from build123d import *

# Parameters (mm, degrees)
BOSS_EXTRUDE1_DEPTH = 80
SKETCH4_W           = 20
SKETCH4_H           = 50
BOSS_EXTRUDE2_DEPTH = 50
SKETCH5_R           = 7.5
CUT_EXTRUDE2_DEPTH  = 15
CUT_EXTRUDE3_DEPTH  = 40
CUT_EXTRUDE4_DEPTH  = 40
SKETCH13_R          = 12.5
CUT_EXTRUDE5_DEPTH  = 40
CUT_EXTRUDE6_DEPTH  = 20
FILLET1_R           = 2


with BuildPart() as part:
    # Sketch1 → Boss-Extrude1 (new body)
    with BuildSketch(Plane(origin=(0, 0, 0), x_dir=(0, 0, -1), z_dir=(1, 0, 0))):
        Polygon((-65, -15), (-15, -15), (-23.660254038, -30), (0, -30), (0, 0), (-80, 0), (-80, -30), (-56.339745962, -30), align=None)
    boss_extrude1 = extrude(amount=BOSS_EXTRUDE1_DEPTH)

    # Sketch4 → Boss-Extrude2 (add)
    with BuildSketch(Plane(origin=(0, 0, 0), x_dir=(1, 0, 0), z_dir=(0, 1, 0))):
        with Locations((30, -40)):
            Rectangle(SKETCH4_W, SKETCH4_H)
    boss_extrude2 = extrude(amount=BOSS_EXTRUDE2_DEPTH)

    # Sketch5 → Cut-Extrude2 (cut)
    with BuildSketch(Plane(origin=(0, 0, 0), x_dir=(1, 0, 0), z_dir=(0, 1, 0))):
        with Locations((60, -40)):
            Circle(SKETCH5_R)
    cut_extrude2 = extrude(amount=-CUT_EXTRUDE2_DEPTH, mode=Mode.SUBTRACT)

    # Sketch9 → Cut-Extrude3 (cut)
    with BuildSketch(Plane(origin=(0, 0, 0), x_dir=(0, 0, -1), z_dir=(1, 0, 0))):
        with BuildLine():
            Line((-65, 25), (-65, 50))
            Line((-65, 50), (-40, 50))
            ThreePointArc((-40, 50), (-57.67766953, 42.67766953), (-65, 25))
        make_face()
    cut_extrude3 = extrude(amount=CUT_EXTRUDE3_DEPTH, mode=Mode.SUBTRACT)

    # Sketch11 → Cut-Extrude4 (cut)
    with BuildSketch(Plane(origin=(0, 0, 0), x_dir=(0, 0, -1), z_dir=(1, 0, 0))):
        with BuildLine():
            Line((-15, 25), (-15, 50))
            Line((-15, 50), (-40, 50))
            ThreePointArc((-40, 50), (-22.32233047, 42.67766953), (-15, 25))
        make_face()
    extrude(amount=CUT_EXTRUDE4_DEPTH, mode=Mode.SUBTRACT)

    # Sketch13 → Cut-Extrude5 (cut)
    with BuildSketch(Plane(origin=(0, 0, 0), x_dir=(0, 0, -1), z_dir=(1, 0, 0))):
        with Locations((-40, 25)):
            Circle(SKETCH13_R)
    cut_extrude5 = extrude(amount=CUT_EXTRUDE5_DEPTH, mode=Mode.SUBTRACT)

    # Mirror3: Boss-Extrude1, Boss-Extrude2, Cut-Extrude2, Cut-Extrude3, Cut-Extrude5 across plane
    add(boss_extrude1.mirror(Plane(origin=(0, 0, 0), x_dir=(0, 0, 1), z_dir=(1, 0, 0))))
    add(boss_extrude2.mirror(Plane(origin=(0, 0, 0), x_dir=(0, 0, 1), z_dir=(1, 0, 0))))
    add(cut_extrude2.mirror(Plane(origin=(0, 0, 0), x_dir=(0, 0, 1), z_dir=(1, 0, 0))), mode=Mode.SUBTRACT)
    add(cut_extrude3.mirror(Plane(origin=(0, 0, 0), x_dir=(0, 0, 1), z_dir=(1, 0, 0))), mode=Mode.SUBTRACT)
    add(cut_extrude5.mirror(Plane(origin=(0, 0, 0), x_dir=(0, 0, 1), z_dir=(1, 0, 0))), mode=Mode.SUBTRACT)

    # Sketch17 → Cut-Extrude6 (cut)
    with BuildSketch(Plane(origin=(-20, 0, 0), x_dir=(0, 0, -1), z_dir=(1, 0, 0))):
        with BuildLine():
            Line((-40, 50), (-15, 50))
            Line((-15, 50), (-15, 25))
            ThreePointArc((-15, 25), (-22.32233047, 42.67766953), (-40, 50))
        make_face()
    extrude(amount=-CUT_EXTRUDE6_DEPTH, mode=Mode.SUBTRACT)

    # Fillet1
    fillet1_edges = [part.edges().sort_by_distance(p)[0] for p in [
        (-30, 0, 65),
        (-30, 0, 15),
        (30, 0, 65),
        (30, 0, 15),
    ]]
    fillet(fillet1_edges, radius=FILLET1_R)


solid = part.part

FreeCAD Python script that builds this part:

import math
import FreeCAD as App
import Part
import Sketcher
Q = App.Units.Quantity


def edges_at(feature, points):
    """Names of the edges that pass closest to the given points."""
    edges = feature.Shape.Edges
    near = lambda p: min(range(len(edges)), key=lambda i: edges[i].distToShape(Part.Vertex(*p))[0])
    return sorted({f"Edge{near(p) + 1}" for p in points})

doc = App.newDocument("Part")
body = doc.addObject("PartDesign::Body", "Body")

# Sketch on YZ plane
sketch1 = doc.addObject("Sketcher::SketchObject", "Sketch")
body.addObject(sketch1)
sketch1.AttachmentSupport = (doc.YZ_Plane, [""])
sketch1.MapMode = "FlatFace"
sketch1.addGeometry(Part.LineSegment(App.Vector(-15, 65, 0), App.Vector(-15, 15, 0)), False)
sketch1.addGeometry(Part.LineSegment(App.Vector(-15, 15, 0), App.Vector(-30, 23.660254, 0)), False)
sketch1.addGeometry(Part.LineSegment(App.Vector(-30, 23.660254, 0), App.Vector(-30, 0, 0)), False)
sketch1.addGeometry(Part.LineSegment(App.Vector(-30, 0, 0), App.Vector(0, 0, 0)), False)
sketch1.addGeometry(Part.LineSegment(App.Vector(0, 0, 0), App.Vector(0, 80, 0)), False)
sketch1.addGeometry(Part.LineSegment(App.Vector(0, 80, 0), App.Vector(-30, 80, 0)), False)
sketch1.addGeometry(Part.LineSegment(App.Vector(-30, 80, 0), App.Vector(-30, 56.339746, 0)), False)
sketch1.addGeometry(Part.LineSegment(App.Vector(-30, 56.339746, 0), App.Vector(-15, 65, 0)), False)
sketch1.addConstraint(Sketcher.Constraint("Coincident", 0, 2, 1, 1))
sketch1.addConstraint(Sketcher.Constraint("Coincident", 1, 2, 2, 1))
sketch1.addConstraint(Sketcher.Constraint("Coincident", 2, 2, 3, 1))
sketch1.addConstraint(Sketcher.Constraint("Coincident", 3, 2, 4, 1))
sketch1.addConstraint(Sketcher.Constraint("Coincident", 4, 2, 5, 1))
sketch1.addConstraint(Sketcher.Constraint("Coincident", 5, 2, 6, 1))
sketch1.addConstraint(Sketcher.Constraint("Coincident", 6, 2, 7, 1))
sketch1.addConstraint(Sketcher.Constraint("Coincident", 7, 2, 0, 1))
sketch1.addConstraint(Sketcher.Constraint("Vertical", 0))
sketch1.addConstraint(Sketcher.Constraint("Vertical", 2))
sketch1.addConstraint(Sketcher.Constraint("Horizontal", 3))
sketch1.addConstraint(Sketcher.Constraint("Vertical", 4))
sketch1.addConstraint(Sketcher.Constraint("Horizontal", 5))
sketch1.addConstraint(Sketcher.Constraint("Vertical", 6))
sketch1.addConstraint(Sketcher.Constraint("Coincident", 3, 2, -1, 1))
sketch1.addConstraint(Sketcher.Constraint("Vertical", 2, 2, 5, 2))
sketch1.addConstraint(Sketcher.Constraint("Equal", 2, 6))
sketch1.addConstraint(Sketcher.Constraint("Equal", 1, 7))
sketch1.addConstraint(Sketcher.Constraint("DistanceX", 3, 1, 3, 2, Q("30 mm")))
sketch1.addConstraint(Sketcher.Constraint("DistanceY", 0, 2, 0, 1, Q("50 mm")))
sketch1.addConstraint(Sketcher.Constraint("DistanceY", 4, 1, 4, 2, Q("80 mm")))
sketch1.addConstraint(Sketcher.Constraint("Angle", 1, Q("150 deg")))
sketch1.addConstraint(Sketcher.Constraint("DistanceX", 0, 2, -1, 1, Q("15 mm")))
pad1 = doc.addObject("PartDesign::Pad", "Pad")
body.addObject(pad1)
pad1.Profile = sketch1
pad1.Length = 80

# Sketch on XZ plane
sketch2 = doc.addObject("Sketcher::SketchObject", "Sketch001")
body.addObject(sketch2)
sketch2.AttachmentSupport = (doc.XZ_Plane, [""])
sketch2.MapMode = "FlatFace"
sketch2.addGeometry(Part.LineSegment(App.Vector(20, 15, 0), App.Vector(20, 65, 0)), False)
sketch2.addGeometry(Part.LineSegment(App.Vector(20, 65, 0), App.Vector(40, 65, 0)), False)
sketch2.addGeometry(Part.LineSegment(App.Vector(40, 65, 0), App.Vector(40, 15, 0)), False)
sketch2.addGeometry(Part.LineSegment(App.Vector(40, 15, 0), App.Vector(20, 15, 0)), False)
sketch2.addConstraint(Sketcher.Constraint("Coincident", 0, 2, 1, 1))
sketch2.addConstraint(Sketcher.Constraint("Coincident", 1, 2, 2, 1))
sketch2.addConstraint(Sketcher.Constraint("Coincident", 2, 2, 3, 1))
sketch2.addConstraint(Sketcher.Constraint("Coincident", 3, 2, 0, 1))
sketch2.addConstraint(Sketcher.Constraint("Vertical", 0))
sketch2.addConstraint(Sketcher.Constraint("Horizontal", 1))
sketch2.addConstraint(Sketcher.Constraint("Vertical", 2))
sketch2.addConstraint(Sketcher.Constraint("Horizontal", 3))
sketch2.addConstraint(Sketcher.Constraint("DistanceX", 1, 1, 1, 2, Q("20 mm")))
sketch2.addConstraint(Sketcher.Constraint("DistanceY", 0, 1, 0, 2, Q("50 mm")))
sketch2.addConstraint(Sketcher.Constraint("DistanceX", -1, 1, 0, 2, Q("20 mm")))
sketch2.addConstraint(Sketcher.Constraint("DistanceY", -1, 1, 0, 2, Q("65 mm")))
pad2 = doc.addObject("PartDesign::Pad", "Pad001")
body.addObject(pad2)
pad2.Profile = sketch2
pad2.Length = 50
pad2.Reversed = True

# Sketch on XZ plane
sketch3 = doc.addObject("Sketcher::SketchObject", "Sketch002")
body.addObject(sketch3)
sketch3.AttachmentSupport = (doc.XZ_Plane, [""])
sketch3.MapMode = "FlatFace"
sketch3.addGeometry(Part.Circle(App.Vector(60, 40, 0), App.Vector(0, 0, 1), 7.5), False)
sketch3.addConstraint(Sketcher.Constraint("Diameter", 0, Q("15 mm")))
sketch3.addConstraint(Sketcher.Constraint("DistanceX", -1, 1, 0, 3, Q("60 mm")))
sketch3.addConstraint(Sketcher.Constraint("DistanceY", -1, 1, 0, 3, Q("40 mm")))
pocket1 = doc.addObject("PartDesign::Pocket", "Pocket")
body.addObject(pocket1)
pocket1.Profile = sketch3
pocket1.Length = 15
pocket1.Reversed = True

# Sketch on YZ plane
sketch4 = doc.addObject("Sketcher::SketchObject", "Sketch003")
body.addObject(sketch4)
sketch4.AttachmentSupport = (doc.YZ_Plane, [""])
sketch4.MapMode = "FlatFace"
sketch4.addGeometry(Part.LineSegment(App.Vector(50, 65, 0), App.Vector(25, 65, 0)), False)
sketch4.addGeometry(Part.ArcOfCircle(Part.Circle(App.Vector(25, 40, 0), App.Vector(0, 0, 1), 25), math.radians(0), math.radians(90)), False)
sketch4.addGeometry(Part.LineSegment(App.Vector(50, 40, 0), App.Vector(50, 65, 0)), False)
sketch4.addConstraint(Sketcher.Constraint("Tangent", 0, 2, 1, 2))
sketch4.addConstraint(Sketcher.Constraint("Tangent", 1, 1, 2, 1))
sketch4.addConstraint(Sketcher.Constraint("Coincident", 2, 2, 0, 1))
sketch4.addConstraint(Sketcher.Constraint("Horizontal", 0))
sketch4.addConstraint(Sketcher.Constraint("Vertical", 2))
sketch4.addConstraint(Sketcher.Constraint("Radius", 1, Q("25 mm")))
sketch4.addConstraint(Sketcher.Constraint("DistanceX", -1, 1, 1, 3, Q("25 mm")))
sketch4.addConstraint(Sketcher.Constraint("DistanceY", -1, 1, 1, 3, Q("40 mm")))
pocket2 = doc.addObject("PartDesign::Pocket", "Pocket001")
body.addObject(pocket2)
pocket2.Profile = sketch4
pocket2.Length = 40
pocket2.Reversed = True

# Sketch on YZ plane
sketch5 = doc.addObject("Sketcher::SketchObject", "Sketch004")
body.addObject(sketch5)
sketch5.AttachmentSupport = (doc.YZ_Plane, [""])
sketch5.MapMode = "FlatFace"
sketch5.addGeometry(Part.LineSegment(App.Vector(25, 15, 0), App.Vector(50, 15, 0)), False)
sketch5.addGeometry(Part.LineSegment(App.Vector(50, 15, 0), App.Vector(50, 40, 0)), False)
sketch5.addGeometry(Part.ArcOfCircle(Part.Circle(App.Vector(25, 40, 0), App.Vector(0, 0, 1), 25), math.radians(-90), math.radians(0)), False)
sketch5.addConstraint(Sketcher.Constraint("Coincident", 0, 2, 1, 1))
sketch5.addConstraint(Sketcher.Constraint("Tangent", 1, 2, 2, 2))
sketch5.addConstraint(Sketcher.Constraint("Tangent", 2, 1, 0, 1))
sketch5.addConstraint(Sketcher.Constraint("Horizontal", 0))
sketch5.addConstraint(Sketcher.Constraint("Vertical", 1))
sketch5.addConstraint(Sketcher.Constraint("Radius", 2, Q("25 mm")))
sketch5.addConstraint(Sketcher.Constraint("DistanceX", -1, 1, 2, 3, Q("25 mm")))
sketch5.addConstraint(Sketcher.Constraint("DistanceY", -1, 1, 2, 3, Q("40 mm")))
pocket3 = doc.addObject("PartDesign::Pocket", "Pocket002")
body.addObject(pocket3)
pocket3.Profile = sketch5
pocket3.Length = 40
pocket3.Reversed = True

# Sketch on YZ plane
sketch6 = doc.addObject("Sketcher::SketchObject", "Sketch005")
body.addObject(sketch6)
sketch6.AttachmentSupport = (doc.YZ_Plane, [""])
sketch6.MapMode = "FlatFace"
sketch6.addGeometry(Part.Circle(App.Vector(25, 40, 0), App.Vector(0, 0, 1), 12.5), False)
sketch6.addConstraint(Sketcher.Constraint("Diameter", 0, Q("25 mm")))
sketch6.addConstraint(Sketcher.Constraint("DistanceX", -1, 1, 0, 3, Q("25 mm")))
sketch6.addConstraint(Sketcher.Constraint("DistanceY", -1, 1, 0, 3, Q("40 mm")))
pocket4 = doc.addObject("PartDesign::Pocket", "Pocket003")
body.addObject(pocket4)
pocket4.Profile = sketch6
pocket4.Length = 40
pocket4.Reversed = True
doc.recompute()

mirrored = doc.addObject("PartDesign::Mirrored", "Mirrored")
body.addObject(mirrored)
mirrored.Originals = [pad1, pad2, pocket1, pocket2, pocket4]
mirrored.MirrorPlane = (doc.YZ_Plane, [""])
body.Tip = mirrored

# Sketch on YZ plane
sketch7 = doc.addObject("Sketcher::SketchObject", "Sketch006")
body.addObject(sketch7)
sketch7.AttachmentSupport = (doc.YZ_Plane, [""])
sketch7.MapMode = "FlatFace"
sketch7.AttachmentOffset = App.Placement(App.Vector(0, 0, -20), App.Rotation())
sketch7.addGeometry(Part.LineSegment(App.Vector(50, 15, 0), App.Vector(50, 40, 0)), False)
sketch7.addGeometry(Part.ArcOfCircle(Part.Circle(App.Vector(25, 40, 0), App.Vector(0, 0, 1), 25), math.radians(-90), math.radians(0)), False)
sketch7.addGeometry(Part.LineSegment(App.Vector(25, 15, 0), App.Vector(50, 15, 0)), False)
sketch7.addConstraint(Sketcher.Constraint("Tangent", 0, 2, 1, 2))
sketch7.addConstraint(Sketcher.Constraint("Tangent", 1, 1, 2, 1))
sketch7.addConstraint(Sketcher.Constraint("Coincident", 2, 2, 0, 1))
sketch7.addConstraint(Sketcher.Constraint("Vertical", 0))
sketch7.addConstraint(Sketcher.Constraint("Horizontal", 2))
sketch7.addConstraint(Sketcher.Constraint("Radius", 1, Q("25 mm")))
sketch7.addConstraint(Sketcher.Constraint("DistanceX", -1, 1, 1, 3, Q("25 mm")))
sketch7.addConstraint(Sketcher.Constraint("DistanceY", -1, 1, 1, 3, Q("40 mm")))
pocket5 = doc.addObject("PartDesign::Pocket", "Pocket004")
body.addObject(pocket5)
pocket5.Profile = sketch7
pocket5.Length = 20
doc.recompute()

fillet = doc.addObject("PartDesign::Fillet", "Fillet")
body.addObject(fillet)
fillet.Base = (pocket5, edges_at(pocket5, [
    (-30, 0, 65),
    (-30, 0, 15),
    (30, 0, 65),
    (30, 0, 15),
]))
fillet.Radius = 2

doc.recompute()
